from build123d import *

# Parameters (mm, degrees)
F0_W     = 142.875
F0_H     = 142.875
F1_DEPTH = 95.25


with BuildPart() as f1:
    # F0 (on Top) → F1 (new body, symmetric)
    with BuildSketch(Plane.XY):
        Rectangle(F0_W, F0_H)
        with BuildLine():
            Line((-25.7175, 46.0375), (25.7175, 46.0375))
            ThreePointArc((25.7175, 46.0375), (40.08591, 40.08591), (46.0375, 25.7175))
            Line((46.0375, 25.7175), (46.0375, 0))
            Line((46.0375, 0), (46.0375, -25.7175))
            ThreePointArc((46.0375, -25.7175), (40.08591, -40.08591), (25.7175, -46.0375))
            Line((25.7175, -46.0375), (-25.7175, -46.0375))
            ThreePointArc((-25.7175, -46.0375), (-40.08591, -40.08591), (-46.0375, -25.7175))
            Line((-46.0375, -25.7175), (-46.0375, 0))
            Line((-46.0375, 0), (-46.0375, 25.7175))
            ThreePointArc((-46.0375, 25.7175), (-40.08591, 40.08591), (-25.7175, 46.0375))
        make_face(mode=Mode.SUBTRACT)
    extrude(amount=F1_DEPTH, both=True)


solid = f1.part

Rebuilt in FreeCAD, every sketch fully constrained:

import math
import FreeCAD as App
import Part
import Sketcher
Q = App.Units.Quantity


def add_polygon(sketch, points):
    """Adds a closed chain of lines whose ends are joined by coincident constraints."""
    first, n = sketch.GeometryCount, len(points)
    for a, b in zip(points, points[1:] + points[:1]):
        sketch.addGeometry(Part.LineSegment(App.Vector(*a, 0), App.Vector(*b, 0)), False)
    for i in range(n):
        sketch.addConstraint(Sketcher.Constraint("Coincident", first + i, 2, first + (i + 1) % n, 1))

doc = App.newDocument("Part")
params = doc.addObject("Spreadsheet::Sheet", "Params")
for row, (alias, value) in enumerate([
    ("sketch1_radius", "0.8 in"),
    ("sketch1_width", "5.625 in"),
    ("pad1_length", "7.5 in"),
], start=1):
    params.set(f"A{row}", alias)
    params.set(f"B{row}", "=" + value)
    params.setAlias(f"B{row}", alias)

body = doc.addObject("PartDesign::Body", "Body")

sketch1 = body.newObject("Sketcher::SketchObject", "Sketch")
sketch1.AttachmentSupport = (doc.getObject("XY_Plane"), [""])
sketch1.MapMode = "FlatFace"
add_polygon(sketch1, [(-71.4375, 71.4375), (-71.4375, -71.4375), (71.4375, -71.4375), (71.4375, 71.4375)])
sketch1.addGeometry(Part.ArcOfCircle(Part.Circle(App.Vector(-25.717501, 25.717501, 0), App.Vector(0, 0, 1), 20.319999), math.radians(89.999998), math.radians(180.000002)), False)
sketch1.addGeometry(Part.LineSegment(App.Vector(-25.7175, 46.0375, 0), App.Vector(25.7175, 46.0375, 0)), False)
sketch1.addGeometry(Part.ArcOfCircle(Part.Circle(App.Vector(25.717501, 25.717501, 0), App.Vector(0, 0, 1), 20.319999), math.radians(-0.000002), math.radians(90.000002)), False)
sketch1.addGeometry(Part.LineSegment(App.Vector(46.0375, 25.7175, 0), App.Vector(46.0375, -25.7175, 0)), False)
sketch1.addGeometry(Part.ArcOfCircle(Part.Circle(App.Vector(25.717501, -25.717501, 0), App.Vector(0, 0, 1), 20.319999), math.radians(-90.000002), math.radians(0.000002)), False)
sketch1.addGeometry(Part.LineSegment(App.Vector(25.7175, -46.0375, 0), App.Vector(-25.7175, -46.0375, 0)), False)
sketch1.addGeometry(Part.ArcOfCircle(Part.Circle(App.Vector(-25.717501, -25.717501, 0), App.Vector(0, 0, 1), 20.319999), math.radians(179.999998), math.radians(270.000002)), False)
sketch1.addGeometry(Part.LineSegment(App.Vector(-46.0375, -25.7175, 0), App.Vector(-46.0375, 25.7175, 0)), False)
sketch1.addConstraint(Sketcher.Constraint("Tangent", 4, 1, 5, 1))
sketch1.addConstraint(Sketcher.Constraint("Tangent", 5, 2, 6, 2))
sketch1.addConstraint(Sketcher.Constraint("Tangent", 6, 1, 7, 1))
sketch1.addConstraint(Sketcher.Constraint("Tangent", 7, 2, 8, 2))
sketch1.addConstraint(Sketcher.Constraint("Tangent", 8, 1, 9, 1))
sketch1.addConstraint(Sketcher.Constraint("Tangent", 9, 2, 10, 2))
sketch1.addConstraint(Sketcher.Constraint("Tangent", 10, 1, 11, 1))
sketch1.addConstraint(Sketcher.Constraint("Tangent", 11, 2, 4, 2))
sketch1.addConstraint(Sketcher.Constraint("Vertical", 0))
sketch1.addConstraint(Sketcher.Constraint("Horizontal", 1))
sketch1.addConstraint(Sketcher.Constraint("Vertical", 2))
sketch1.addConstraint(Sketcher.Constraint("Horizontal", 3))
sketch1.addConstraint(Sketcher.Constraint("Horizontal", 5))
sketch1.addConstraint(Sketcher.Constraint("Vertical", 7))
sketch1.addConstraint(Sketcher.Constraint("Horizontal", 9))
sketch1.addConstraint(Sketcher.Constraint("Vertical", 11))
sketch1.addConstraint(Sketcher.Constraint("Equal", 4, 6))
sketch1.addConstraint(Sketcher.Constraint("Equal", 6, 8))
sketch1.addConstraint(Sketcher.Constraint("Equal", 8, 10))
sketch1.addConstraint(Sketcher.Constraint("Symmetric", 4, 3, 8, 3, -1, 1))
sketch1.addConstraint(Sketcher.Constraint("Symmetric", 0, 2, 2, 2, -1, 1))
sketch1.addConstraint(Sketcher.Constraint("Equal", 3, 0))
sketch1.addConstraint(Sketcher.Constraint("Equal", 9, 7))
sketch1.addConstraint(Sketcher.Constraint("Radius", 4, Q("0.8 in")))
sketch1.addConstraint(Sketcher.Constraint("DistanceY", 4, 1, 3, 2, Q("1 in")))
sketch1.addConstraint(Sketcher.Constraint("DistanceX", 1, 1, 1, 2, Q("5.625 in")))
sketch1.setExpression("Constraints[27]", "Params.sketch1_radius")
sketch1.setExpression("Constraints[29]", "Params.sketch1_width")
pad1 = body.newObject("PartDesign::Pad", "Pad")
pad1.Profile = sketch1
pad1.setExpression("Length", "Params.pad1_length")
pad1.Midplane = True

doc.recompute()
